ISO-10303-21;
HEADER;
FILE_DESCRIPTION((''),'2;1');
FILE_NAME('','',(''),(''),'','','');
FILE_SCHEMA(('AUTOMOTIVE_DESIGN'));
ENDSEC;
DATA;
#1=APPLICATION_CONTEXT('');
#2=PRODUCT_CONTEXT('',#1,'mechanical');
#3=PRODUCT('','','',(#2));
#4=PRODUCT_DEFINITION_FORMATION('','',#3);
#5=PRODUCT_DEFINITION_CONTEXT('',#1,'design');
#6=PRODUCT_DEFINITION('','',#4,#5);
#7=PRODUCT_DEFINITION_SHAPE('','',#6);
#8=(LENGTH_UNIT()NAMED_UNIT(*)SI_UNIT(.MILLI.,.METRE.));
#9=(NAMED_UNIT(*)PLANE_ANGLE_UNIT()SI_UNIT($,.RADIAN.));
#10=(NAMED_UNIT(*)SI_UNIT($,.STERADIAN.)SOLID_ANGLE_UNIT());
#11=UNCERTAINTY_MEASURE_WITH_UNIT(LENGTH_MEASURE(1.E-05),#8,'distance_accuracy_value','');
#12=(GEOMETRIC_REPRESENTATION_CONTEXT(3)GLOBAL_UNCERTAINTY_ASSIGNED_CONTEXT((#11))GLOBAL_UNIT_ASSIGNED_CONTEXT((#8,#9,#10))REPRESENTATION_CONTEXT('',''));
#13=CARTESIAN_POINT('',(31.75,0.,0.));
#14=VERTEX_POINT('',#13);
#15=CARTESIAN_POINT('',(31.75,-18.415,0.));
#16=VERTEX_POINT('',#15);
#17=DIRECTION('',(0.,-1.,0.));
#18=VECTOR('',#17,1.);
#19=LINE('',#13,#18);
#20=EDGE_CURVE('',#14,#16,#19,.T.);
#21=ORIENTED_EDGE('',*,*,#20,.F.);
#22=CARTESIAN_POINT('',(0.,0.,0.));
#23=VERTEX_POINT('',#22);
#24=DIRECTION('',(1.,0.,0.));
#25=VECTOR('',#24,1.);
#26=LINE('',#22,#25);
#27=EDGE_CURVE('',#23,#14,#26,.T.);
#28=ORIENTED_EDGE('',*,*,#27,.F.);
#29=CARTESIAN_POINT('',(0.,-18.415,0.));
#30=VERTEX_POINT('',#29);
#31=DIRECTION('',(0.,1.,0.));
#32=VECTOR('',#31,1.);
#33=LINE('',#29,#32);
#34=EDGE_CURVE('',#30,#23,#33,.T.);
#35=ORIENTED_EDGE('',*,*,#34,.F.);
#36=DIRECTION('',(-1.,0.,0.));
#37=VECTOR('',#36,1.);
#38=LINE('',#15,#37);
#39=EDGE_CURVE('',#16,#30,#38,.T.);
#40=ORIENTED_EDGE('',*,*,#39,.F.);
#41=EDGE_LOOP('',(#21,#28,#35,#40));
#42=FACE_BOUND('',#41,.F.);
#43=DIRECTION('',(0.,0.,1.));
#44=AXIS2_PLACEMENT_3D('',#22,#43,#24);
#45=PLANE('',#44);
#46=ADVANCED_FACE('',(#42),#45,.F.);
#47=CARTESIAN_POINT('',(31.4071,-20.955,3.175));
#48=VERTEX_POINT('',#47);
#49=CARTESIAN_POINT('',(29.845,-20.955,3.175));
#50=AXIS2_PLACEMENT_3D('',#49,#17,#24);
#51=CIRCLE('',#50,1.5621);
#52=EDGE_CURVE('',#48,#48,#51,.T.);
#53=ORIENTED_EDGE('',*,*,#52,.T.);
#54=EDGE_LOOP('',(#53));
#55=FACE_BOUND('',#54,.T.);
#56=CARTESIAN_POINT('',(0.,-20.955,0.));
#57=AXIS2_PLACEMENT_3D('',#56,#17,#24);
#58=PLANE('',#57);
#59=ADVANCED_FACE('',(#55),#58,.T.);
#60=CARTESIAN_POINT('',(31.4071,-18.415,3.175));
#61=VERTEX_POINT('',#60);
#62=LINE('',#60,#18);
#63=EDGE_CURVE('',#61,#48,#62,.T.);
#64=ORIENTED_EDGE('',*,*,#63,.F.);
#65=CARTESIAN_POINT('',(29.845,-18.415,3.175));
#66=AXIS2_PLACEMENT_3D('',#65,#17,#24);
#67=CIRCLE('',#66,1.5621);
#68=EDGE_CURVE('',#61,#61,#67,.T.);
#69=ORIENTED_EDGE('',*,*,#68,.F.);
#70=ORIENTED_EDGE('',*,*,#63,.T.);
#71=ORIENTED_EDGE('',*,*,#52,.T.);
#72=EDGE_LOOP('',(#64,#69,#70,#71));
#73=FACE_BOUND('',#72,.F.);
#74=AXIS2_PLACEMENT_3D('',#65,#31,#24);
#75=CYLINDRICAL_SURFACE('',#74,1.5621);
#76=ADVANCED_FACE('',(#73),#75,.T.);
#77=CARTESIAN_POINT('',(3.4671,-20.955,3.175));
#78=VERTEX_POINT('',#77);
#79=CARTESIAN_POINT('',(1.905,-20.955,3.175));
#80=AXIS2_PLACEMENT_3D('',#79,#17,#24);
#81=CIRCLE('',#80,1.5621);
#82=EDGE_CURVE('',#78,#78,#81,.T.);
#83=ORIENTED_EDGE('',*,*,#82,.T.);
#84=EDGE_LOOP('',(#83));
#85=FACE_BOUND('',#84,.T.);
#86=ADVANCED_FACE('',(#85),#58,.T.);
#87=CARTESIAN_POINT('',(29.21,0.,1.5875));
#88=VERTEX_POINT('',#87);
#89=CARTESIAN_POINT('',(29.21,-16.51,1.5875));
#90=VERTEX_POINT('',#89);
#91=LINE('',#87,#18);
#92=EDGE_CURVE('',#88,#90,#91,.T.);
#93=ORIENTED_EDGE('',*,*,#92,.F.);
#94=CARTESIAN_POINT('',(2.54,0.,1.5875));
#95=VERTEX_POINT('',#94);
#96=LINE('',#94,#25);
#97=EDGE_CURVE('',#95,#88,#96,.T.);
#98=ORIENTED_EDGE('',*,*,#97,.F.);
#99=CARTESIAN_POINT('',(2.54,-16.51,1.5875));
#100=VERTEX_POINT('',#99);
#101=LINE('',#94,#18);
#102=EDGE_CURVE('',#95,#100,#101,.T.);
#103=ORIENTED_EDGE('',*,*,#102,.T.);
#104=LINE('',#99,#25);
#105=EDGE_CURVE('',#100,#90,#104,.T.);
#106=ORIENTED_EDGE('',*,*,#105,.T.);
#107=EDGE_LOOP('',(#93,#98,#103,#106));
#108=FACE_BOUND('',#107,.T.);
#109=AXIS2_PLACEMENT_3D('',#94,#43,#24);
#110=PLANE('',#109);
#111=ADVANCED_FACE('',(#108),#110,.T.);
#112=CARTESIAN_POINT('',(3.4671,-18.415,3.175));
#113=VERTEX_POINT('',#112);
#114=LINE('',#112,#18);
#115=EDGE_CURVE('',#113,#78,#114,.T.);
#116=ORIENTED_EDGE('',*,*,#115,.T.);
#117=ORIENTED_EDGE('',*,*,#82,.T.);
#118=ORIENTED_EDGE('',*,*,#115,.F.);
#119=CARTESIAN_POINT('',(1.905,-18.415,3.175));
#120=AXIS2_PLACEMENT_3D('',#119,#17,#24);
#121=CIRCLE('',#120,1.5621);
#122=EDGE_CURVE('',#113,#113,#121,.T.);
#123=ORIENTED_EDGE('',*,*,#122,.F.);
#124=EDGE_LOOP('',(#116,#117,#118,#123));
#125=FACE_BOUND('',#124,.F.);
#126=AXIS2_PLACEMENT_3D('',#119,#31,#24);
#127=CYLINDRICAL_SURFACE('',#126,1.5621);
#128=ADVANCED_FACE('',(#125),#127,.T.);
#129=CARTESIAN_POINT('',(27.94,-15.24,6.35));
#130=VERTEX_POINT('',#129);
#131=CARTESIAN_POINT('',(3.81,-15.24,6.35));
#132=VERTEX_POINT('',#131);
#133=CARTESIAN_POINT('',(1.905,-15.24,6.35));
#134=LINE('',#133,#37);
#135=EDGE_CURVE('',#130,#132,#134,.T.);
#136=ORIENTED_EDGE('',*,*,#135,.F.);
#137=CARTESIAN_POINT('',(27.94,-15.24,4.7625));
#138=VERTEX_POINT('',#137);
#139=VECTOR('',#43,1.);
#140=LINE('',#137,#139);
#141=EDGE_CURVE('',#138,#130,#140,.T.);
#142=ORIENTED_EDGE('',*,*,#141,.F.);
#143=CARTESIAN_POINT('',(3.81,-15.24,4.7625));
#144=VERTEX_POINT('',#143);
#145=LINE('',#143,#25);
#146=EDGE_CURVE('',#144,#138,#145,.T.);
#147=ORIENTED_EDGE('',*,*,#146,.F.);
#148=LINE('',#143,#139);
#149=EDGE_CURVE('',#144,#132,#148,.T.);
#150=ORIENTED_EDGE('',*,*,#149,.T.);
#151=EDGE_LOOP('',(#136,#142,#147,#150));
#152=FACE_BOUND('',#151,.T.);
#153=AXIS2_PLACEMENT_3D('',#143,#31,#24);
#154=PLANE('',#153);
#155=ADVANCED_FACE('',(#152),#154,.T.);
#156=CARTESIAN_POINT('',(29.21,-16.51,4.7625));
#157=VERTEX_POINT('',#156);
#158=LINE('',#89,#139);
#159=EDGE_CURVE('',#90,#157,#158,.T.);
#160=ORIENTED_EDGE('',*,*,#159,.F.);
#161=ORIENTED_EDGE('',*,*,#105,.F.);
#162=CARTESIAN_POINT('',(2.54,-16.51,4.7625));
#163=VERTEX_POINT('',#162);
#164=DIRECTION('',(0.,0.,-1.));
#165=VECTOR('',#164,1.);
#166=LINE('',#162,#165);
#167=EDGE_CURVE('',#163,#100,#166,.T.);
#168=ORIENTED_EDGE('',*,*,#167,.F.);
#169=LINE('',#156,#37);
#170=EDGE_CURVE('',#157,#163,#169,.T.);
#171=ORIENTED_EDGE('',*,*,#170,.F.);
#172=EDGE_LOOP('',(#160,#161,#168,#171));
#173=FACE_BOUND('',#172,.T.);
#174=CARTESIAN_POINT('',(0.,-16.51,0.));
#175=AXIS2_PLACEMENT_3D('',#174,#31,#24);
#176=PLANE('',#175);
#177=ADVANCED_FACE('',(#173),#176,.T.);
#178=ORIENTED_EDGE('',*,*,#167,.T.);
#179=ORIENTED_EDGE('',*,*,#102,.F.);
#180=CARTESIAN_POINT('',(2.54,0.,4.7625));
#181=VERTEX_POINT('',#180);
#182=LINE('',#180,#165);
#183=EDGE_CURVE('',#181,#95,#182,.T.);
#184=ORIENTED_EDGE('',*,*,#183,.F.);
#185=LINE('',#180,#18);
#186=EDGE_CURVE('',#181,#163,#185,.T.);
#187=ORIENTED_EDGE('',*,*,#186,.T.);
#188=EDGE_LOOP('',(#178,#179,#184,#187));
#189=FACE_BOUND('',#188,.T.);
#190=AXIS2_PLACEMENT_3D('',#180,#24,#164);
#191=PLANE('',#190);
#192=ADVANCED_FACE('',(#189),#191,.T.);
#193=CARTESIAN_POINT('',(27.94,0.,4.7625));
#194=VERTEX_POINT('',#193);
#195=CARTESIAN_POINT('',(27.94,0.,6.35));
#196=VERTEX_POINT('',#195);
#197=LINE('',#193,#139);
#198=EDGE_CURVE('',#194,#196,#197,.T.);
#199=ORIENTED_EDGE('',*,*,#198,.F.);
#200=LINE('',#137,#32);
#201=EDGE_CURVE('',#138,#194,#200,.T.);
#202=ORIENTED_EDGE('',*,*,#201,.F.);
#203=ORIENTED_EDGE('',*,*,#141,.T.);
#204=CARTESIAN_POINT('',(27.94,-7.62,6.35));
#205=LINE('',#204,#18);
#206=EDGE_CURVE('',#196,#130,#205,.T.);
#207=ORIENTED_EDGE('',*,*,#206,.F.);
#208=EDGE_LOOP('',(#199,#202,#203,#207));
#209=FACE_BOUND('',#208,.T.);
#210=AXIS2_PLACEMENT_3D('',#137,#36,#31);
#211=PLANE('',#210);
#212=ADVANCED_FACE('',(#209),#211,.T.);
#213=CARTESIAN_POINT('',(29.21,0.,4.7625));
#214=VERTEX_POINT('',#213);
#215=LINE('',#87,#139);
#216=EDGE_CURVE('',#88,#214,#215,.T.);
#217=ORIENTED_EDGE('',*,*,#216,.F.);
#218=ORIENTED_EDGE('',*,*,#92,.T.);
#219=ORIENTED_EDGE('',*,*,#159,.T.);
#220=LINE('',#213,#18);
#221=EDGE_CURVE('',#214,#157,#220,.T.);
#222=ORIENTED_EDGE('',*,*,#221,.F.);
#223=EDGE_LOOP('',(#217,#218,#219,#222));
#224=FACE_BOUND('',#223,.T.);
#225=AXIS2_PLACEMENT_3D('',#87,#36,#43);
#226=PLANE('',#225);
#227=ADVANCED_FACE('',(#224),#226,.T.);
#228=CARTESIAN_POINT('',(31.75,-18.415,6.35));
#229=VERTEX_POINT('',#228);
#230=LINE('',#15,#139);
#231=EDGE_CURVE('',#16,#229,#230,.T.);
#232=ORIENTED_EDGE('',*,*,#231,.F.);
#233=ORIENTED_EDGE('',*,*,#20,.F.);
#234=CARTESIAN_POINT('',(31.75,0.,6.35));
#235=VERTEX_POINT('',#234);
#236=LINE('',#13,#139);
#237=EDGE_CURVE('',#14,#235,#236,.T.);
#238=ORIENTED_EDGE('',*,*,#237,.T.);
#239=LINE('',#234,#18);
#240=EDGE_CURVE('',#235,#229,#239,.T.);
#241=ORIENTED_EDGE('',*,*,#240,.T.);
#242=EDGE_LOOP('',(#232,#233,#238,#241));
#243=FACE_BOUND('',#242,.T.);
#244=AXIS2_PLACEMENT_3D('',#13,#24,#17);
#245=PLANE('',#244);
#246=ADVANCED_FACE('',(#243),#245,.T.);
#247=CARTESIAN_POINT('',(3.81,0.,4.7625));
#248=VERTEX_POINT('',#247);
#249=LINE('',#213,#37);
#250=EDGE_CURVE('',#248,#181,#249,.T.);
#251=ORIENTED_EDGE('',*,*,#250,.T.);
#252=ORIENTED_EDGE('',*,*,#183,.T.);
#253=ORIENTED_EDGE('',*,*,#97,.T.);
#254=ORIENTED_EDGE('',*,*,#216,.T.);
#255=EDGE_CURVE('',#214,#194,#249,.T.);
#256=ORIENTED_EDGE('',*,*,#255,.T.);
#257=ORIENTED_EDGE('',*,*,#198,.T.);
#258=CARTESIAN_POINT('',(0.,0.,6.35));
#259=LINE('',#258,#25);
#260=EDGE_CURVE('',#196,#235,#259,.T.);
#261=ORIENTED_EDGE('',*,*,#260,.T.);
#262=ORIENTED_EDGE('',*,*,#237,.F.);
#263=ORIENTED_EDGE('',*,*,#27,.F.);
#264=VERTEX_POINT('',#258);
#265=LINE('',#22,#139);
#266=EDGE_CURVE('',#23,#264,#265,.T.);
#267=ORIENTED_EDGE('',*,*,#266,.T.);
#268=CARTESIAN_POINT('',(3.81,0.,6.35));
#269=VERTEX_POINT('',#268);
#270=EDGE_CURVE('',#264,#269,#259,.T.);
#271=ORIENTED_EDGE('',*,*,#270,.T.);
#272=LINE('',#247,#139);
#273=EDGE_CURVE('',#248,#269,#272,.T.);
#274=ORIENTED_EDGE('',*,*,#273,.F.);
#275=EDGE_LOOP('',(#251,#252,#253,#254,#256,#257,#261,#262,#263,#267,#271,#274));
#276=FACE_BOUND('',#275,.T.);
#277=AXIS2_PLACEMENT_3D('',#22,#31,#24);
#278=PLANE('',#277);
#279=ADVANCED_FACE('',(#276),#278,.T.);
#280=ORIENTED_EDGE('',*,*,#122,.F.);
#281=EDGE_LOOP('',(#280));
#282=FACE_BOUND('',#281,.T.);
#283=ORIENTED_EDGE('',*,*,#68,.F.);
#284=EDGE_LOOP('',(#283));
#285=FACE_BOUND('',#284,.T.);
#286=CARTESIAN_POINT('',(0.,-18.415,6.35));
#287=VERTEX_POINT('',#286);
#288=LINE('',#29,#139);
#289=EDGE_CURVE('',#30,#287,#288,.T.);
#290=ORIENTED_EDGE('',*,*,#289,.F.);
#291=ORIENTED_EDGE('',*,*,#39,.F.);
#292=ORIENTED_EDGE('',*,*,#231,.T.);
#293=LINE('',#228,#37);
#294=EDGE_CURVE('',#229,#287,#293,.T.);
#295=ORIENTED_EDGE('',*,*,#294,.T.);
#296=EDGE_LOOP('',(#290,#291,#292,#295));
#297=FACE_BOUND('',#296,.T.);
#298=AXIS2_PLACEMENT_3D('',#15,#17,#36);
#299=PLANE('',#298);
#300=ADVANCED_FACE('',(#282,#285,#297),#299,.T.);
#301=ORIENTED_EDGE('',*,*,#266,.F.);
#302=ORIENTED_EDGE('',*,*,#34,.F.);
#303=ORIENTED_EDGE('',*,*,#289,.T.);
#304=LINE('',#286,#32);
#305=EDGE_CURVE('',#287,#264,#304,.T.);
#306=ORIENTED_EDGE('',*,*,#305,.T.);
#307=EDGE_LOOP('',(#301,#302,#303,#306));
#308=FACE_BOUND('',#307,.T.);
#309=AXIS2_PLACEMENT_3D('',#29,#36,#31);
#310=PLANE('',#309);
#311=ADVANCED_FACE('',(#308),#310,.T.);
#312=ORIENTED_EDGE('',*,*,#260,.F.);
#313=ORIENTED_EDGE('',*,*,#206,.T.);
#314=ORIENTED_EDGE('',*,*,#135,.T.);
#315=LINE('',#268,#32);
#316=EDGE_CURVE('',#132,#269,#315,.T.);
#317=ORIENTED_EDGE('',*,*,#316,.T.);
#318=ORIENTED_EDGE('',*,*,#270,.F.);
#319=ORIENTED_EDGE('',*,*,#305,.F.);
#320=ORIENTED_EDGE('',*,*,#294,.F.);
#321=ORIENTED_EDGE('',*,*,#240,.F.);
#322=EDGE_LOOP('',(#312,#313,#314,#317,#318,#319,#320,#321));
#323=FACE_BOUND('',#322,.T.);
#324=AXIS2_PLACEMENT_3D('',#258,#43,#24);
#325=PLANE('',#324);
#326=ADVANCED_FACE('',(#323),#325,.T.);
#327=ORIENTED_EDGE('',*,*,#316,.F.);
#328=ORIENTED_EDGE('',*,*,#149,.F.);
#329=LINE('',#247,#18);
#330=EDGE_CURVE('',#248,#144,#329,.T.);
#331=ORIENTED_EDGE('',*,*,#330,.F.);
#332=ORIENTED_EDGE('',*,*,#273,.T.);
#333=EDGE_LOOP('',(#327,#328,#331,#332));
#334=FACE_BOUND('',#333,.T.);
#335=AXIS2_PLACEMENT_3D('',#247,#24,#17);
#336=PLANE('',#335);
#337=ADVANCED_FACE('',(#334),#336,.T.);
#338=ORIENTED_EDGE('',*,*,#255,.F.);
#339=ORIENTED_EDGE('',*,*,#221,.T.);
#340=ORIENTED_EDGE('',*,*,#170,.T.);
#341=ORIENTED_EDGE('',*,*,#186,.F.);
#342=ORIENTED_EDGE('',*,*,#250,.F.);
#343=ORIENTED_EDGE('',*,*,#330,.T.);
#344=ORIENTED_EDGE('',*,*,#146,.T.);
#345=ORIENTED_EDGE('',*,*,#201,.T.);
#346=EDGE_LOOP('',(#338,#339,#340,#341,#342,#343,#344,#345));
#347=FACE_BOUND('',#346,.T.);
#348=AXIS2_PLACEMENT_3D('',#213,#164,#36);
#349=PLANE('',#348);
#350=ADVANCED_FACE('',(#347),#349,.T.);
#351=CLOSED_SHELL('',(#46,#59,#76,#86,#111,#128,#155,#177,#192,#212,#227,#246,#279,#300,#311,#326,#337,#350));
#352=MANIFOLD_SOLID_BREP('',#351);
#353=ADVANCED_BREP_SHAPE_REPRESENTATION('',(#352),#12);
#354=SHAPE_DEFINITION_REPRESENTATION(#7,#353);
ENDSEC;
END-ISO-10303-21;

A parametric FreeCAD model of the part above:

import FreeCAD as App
import Part
import Sketcher
Q = App.Units.Quantity

doc = App.newDocument("Part")
body = doc.addObject("PartDesign::Body", "Body")

# Sketch on XY plane
sketch1 = doc.addObject("Sketcher::SketchObject", "Sketch")
body.addObject(sketch1)
sketch1.AttachmentSupport = (doc.XY_Plane, [""])
sketch1.MapMode = "FlatFace"
sketch1.addGeometry([
    Part.LineSegment(App.Vector(32, 0, 0), App.Vector(0, 0, 0)),
    Part.LineSegment(App.Vector(0, 0, 0), App.Vector(0, -18, 0)),
    Part.LineSegment(App.Vector(0, -18, 0), App.Vector(32, -18, 0)),
    Part.LineSegment(App.Vector(32, -18, 0), App.Vector(32, 0, 0)),
], False)
sketch1.addConstraint([
    Sketcher.Constraint("Coincident", 0, 2, 1, 1),
    Sketcher.Constraint("Coincident", 1, 2, 2, 1),
    Sketcher.Constraint("Coincident", 2, 2, 3, 1),
    Sketcher.Constraint("Coincident", 3, 2, 0, 1),
    Sketcher.Constraint("Horizontal", 0),
    Sketcher.Constraint("Vertical", 1),
    Sketcher.Constraint("Horizontal", 2),
    Sketcher.Constraint("Vertical", 3),
    Sketcher.Constraint("Coincident", 0, 2, -1, 1),
    Sketcher.Constraint("DistanceX", 0, 2, 0, 1, Q("1.25 in")),
    Sketcher.Constraint("DistanceY", 1, 2, 1, 1, Q("0.725 in")),
])
pad1 = doc.addObject("PartDesign::Pad", "Pad")
body.addObject(pad1)
pad1.Profile = sketch1
pad1.Length = Q("0.25 in")

# Sketch on XZ plane
sketch2 = doc.addObject("Sketcher::SketchObject", "Sketch001")
body.addObject(sketch2)
sketch2.AttachmentSupport = (doc.XZ_Plane, [""])
sketch2.MapMode = "FlatFace"
sketch2.addGeometry([
    Part.LineSegment(App.Vector(29.2, 1.6, 0), App.Vector(2.5, 1.6, 0)),
    Part.LineSegment(App.Vector(2.5, 1.6, 0), App.Vector(2.5, 4.8, 0)),
    Part.LineSegment(App.Vector(2.5, 4.8, 0), App.Vector(29.2, 4.8, 0)),
    Part.LineSegment(App.Vector(29.2, 4.8, 0), App.Vector(29.2, 1.6, 0)),
], False)
sketch2.addConstraint([
    Sketcher.Constraint("Coincident", 0, 2, 1, 1),
    Sketcher.Constraint("Coincident", 1, 2, 2, 1),
    Sketcher.Constraint("Coincident", 2, 2, 3, 1),
    Sketcher.Constraint("Coincident", 3, 2, 0, 1),
    Sketcher.Constraint("Horizontal", 0),
    Sketcher.Constraint("Vertical", 1),
    Sketcher.Constraint("Horizontal", 2),
    Sketcher.Constraint("Vertical", 3),
    Sketcher.Constraint("DistanceX", 0, 2, 0, 1, Q("1.05 in")),
    Sketcher.Constraint("DistanceX", -1, 1, 0, 2, Q("0.1 in")),
    Sketcher.Constraint("DistanceY", 1, 1, 1, 2, Q("0.125 in")),
    Sketcher.Constraint("DistanceY", -1, 1, 0, 2, Q("0.0625 in")),
])
pocket1 = doc.addObject("PartDesign::Pocket", "Pocket")
body.addObject(pocket1)
pocket1.Profile = sketch2
pocket1.Length = Q("0.65 in")
pocket1.Reversed = True

# Sketch on XY plane
sketch3 = doc.addObject("Sketcher::SketchObject", "Sketch002")
body.addObject(sketch3)
sketch3.AttachmentSupport = (doc.XY_Plane, [""])
sketch3.MapMode = "FlatFace"
sketch3.AttachmentOffset = App.Placement(App.Vector(0, 0, 0.1875 * 25.4), App.Rotation())
sketch3.addGeometry([
    Part.LineSegment(App.Vector(4, 0, 0), App.Vector(28, 0, 0)),
    Part.LineSegment(App.Vector(28, 0, 0), App.Vector(28, -15, 0)),
    Part.LineSegment(App.Vector(28, -15, 0), App.Vector(4, -15, 0)),
    Part.LineSegment(App.Vector(4, -15, 0), App.Vector(4, 0, 0)),
], False)
sketch3.addConstraint([
    Sketcher.Constraint("Coincident", 0, 2, 1, 1),
    Sketcher.Constraint("Coincident", 1, 2, 2, 1),
    Sketcher.Constraint("Coincident", 2, 2, 3, 1),
    Sketcher.Constraint("Coincident", 3, 2, 0, 1),
    Sketcher.Constraint("Horizontal", 0),
    Sketcher.Constraint("Vertical", 1),
    Sketcher.Constraint("Horizontal", 2),
    Sketcher.Constraint("Vertical", 3),
    Sketcher.Constraint("PointOnObject", 0, 2, -1),
    Sketcher.Constraint("DistanceY", 1, 2, 1, 1, Q("0.6 in")),
    Sketcher.Constraint("DistanceX", 0, 1, 0, 2, Q("0.95 in")),
    Sketcher.Constraint("DistanceX", -1, 1, 0, 2, Q("1.1 in")),
])
pocket2 = doc.addObject("PartDesign::Pocket", "Pocket001")
body.addObject(pocket2)
pocket2.Profile = sketch3
pocket2.Length = Q("0.65 in")
pocket2.Reversed = True

# Sketch on XZ plane
sketch4 = doc.addObject("Sketcher::SketchObject", "Sketch003")
body.addObject(sketch4)
sketch4.AttachmentSupport = (doc.XZ_Plane, [""])
sketch4.MapMode = "FlatFace"
sketch4.AttachmentOffset = App.Placement(App.Vector(0, 0, 0.725 * 25.4), App.Rotation())
sketch4.addGeometry([
    Part.Circle(App.Vector(1.9, 3.2, 0), App.Vector(0, 0, 1), 1.6),
    Part.Circle(App.Vector(29.8, 3.2, 0), App.Vector(0, 0, 1), 1.6),
], False)
sketch4.addConstraint([
    Sketcher.Constraint("Equal", 0, 1),
    Sketcher.Constraint("Horizontal", 0, 3, 1, 3),
    Sketcher.Constraint("Diameter", 0, Q("0.123 in")),
    Sketcher.Constraint("DistanceX", 0, 3, 1, 3, Q("1.1 in")),
    Sketcher.Constraint("DistanceX", -1, 1, 0, 3, Q("0.075 in")),
    Sketcher.Constraint("DistanceY", -1, 1, 0, 3, Q("0.125 in")),
])
pad2 = doc.addObject("PartDesign::Pad", "Pad001")
body.addObject(pad2)
pad2.Profile = sketch4
pad2.Length = Q("0.1 in")

doc.recompute()
